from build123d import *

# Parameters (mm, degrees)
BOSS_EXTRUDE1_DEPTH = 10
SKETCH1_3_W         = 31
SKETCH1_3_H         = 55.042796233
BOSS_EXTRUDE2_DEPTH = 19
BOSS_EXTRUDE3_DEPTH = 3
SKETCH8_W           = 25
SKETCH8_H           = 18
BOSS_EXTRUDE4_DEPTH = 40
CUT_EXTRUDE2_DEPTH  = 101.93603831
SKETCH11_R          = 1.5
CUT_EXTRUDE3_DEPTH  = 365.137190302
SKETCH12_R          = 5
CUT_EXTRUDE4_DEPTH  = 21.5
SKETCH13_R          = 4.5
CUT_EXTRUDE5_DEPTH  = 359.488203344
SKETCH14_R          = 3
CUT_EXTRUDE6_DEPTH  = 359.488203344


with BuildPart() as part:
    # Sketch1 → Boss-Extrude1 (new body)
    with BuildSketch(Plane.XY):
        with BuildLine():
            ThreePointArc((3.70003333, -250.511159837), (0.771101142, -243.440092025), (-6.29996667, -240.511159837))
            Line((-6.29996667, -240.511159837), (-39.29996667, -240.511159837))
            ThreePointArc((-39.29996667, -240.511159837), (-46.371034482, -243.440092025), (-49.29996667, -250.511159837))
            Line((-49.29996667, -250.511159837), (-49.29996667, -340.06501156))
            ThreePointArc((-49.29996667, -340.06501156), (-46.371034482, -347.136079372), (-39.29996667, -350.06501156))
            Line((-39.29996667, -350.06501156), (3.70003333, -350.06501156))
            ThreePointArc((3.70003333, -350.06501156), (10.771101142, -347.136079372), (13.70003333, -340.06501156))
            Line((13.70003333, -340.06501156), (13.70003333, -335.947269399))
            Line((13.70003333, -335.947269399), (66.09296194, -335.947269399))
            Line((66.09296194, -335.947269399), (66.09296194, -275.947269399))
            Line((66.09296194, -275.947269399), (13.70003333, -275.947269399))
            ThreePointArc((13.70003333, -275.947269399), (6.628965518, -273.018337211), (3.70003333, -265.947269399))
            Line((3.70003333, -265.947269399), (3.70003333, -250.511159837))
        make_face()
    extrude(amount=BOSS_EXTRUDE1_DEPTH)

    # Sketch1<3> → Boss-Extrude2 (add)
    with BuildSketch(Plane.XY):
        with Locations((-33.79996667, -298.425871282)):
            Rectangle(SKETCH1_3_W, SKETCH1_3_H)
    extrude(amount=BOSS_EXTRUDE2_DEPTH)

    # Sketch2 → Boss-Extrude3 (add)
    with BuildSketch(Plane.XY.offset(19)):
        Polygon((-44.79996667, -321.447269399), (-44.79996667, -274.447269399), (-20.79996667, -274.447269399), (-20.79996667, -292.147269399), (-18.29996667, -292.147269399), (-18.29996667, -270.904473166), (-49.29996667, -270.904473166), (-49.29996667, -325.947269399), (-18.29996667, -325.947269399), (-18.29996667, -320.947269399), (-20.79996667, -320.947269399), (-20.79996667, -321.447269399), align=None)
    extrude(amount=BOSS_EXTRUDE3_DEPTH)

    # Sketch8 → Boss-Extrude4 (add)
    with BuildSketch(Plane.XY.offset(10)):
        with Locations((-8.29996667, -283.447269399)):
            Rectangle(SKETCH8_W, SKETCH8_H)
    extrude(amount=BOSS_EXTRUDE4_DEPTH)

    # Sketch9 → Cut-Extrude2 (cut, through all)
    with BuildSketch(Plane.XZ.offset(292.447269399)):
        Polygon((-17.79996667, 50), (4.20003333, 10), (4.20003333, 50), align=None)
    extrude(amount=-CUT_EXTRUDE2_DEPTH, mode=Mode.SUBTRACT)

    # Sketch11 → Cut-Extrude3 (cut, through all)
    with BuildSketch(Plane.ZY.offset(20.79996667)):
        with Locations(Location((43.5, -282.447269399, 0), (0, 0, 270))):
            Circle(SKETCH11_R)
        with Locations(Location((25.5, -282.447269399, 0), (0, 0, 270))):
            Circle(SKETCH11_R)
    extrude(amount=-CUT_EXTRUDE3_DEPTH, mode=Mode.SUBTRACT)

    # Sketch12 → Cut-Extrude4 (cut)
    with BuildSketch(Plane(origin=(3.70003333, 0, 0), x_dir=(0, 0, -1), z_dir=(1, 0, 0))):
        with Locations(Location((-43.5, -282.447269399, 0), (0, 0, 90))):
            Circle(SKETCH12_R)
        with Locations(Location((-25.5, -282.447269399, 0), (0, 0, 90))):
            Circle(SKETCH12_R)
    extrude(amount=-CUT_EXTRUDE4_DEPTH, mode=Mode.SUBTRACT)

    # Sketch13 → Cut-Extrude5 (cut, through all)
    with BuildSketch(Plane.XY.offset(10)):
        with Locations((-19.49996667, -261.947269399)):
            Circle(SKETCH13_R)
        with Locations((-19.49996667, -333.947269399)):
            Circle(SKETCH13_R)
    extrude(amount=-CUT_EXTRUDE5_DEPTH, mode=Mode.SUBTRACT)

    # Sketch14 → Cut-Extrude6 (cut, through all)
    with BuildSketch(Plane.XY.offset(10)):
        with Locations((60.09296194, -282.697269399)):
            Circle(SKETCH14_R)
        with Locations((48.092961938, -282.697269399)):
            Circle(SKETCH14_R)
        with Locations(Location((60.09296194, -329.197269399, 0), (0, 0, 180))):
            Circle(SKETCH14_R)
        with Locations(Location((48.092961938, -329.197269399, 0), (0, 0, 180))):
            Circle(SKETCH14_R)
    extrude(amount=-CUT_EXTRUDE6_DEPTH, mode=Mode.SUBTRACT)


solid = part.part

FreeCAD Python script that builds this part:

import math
import FreeCAD as App
import Part
import Sketcher
Q = App.Units.Quantity

doc = App.newDocument("Part")
body = doc.addObject("PartDesign::Body", "Body")

# Sketch on XY plane
sketch1 = doc.addObject("Sketcher::SketchObject", "Sketch")
body.addObject(sketch1)
sketch1.AttachmentSupport = (doc.XY_Plane, [""])
sketch1.MapMode = "FlatFace"
sketch1.addGeometry(Part.ArcOfCircle(Part.Circle(App.Vector(-6.299967, -250.51116, 0), App.Vector(0, 0, 1), 10), math.radians(0), math.radians(90)), False)
sketch1.addGeometry(Part.LineSegment(App.Vector(-6.299967, -240.51116, 0), App.Vector(-39.299967, -240.51116, 0)), False)
sketch1.addGeometry(Part.ArcOfCircle(Part.Circle(App.Vector(-39.299967, -250.51116, 0), App.Vector(0, 0, 1), 10), math.radians(90), math.radians(180)), False)
sketch1.addGeometry(Part.LineSegment(App.Vector(-49.299967, -250.51116, 0), App.Vector(-49.299967, -340.065012, 0)), False)
sketch1.addGeometry(Part.ArcOfCircle(Part.Circle(App.Vector(-39.299967, -340.065012, 0), App.Vector(0, 0, 1), 10), math.radians(180), math.radians(270)), False)
sketch1.addGeometry(Part.LineSegment(App.Vector(-39.299967, -350.065012, 0), App.Vector(3.700033, -350.065012, 0)), False)
sketch1.addGeometry(Part.ArcOfCircle(Part.Circle(App.Vector(3.700033, -340.065012, 0), App.Vector(0, 0, 1), 10), math.radians(-90), math.radians(0)), False)
sketch1.addGeometry(Part.LineSegment(App.Vector(13.700033, -340.065012, 0), App.Vector(13.700033, -335.947269, 0)), False)
sketch1.addGeometry(Part.LineSegment(App.Vector(13.700033, -335.947269, 0), App.Vector(66.092962, -335.947269, 0)), False)
sketch1.addGeometry(Part.LineSegment(App.Vector(66.092962, -335.947269, 0), App.Vector(66.092962, -275.947269, 0)), False)
sketch1.addGeometry(Part.LineSegment(App.Vector(66.092962, -275.947269, 0), App.Vector(13.700033, -275.947269, 0)), False)
sketch1.addGeometry(Part.ArcOfCircle(Part.Circle(App.Vector(13.700033, -265.947269, 0), App.Vector(0, 0, 1), 10), math.radians(180), math.radians(270)), False)
sketch1.addGeometry(Part.LineSegment(App.Vector(3.700033, -265.947269, 0), App.Vector(3.700033, -250.51116, 0)), False)
sketch1.addConstraint(Sketcher.Constraint("Tangent", 0, 2, 1, 1))
sketch1.addConstraint(Sketcher.Constraint("Tangent", 1, 2, 2, 1))
sketch1.addConstraint(Sketcher.Constraint("Tangent", 2, 2, 3, 1))
sketch1.addConstraint(Sketcher.Constraint("Tangent", 3, 2, 4, 1))
sketch1.addConstraint(Sketcher.Constraint("Tangent", 4, 2, 5, 1))
sketch1.addConstraint(Sketcher.Constraint("Tangent", 5, 2, 6, 1))
sketch1.addConstraint(Sketcher.Constraint("Tangent", 6, 2, 7, 1))
sketch1.addConstraint(Sketcher.Constraint("Coincident", 7, 2, 8, 1))
sketch1.addConstraint(Sketcher.Constraint("Coincident", 8, 2, 9, 1))
sketch1.addConstraint(Sketcher.Constraint("Coincident", 9, 2, 10, 1))
sketch1.addConstraint(Sketcher.Constraint("Tangent", 10, 2, 11, 2))
sketch1.addConstraint(Sketcher.Constraint("Tangent", 11, 1, 12, 1))
sketch1.addConstraint(Sketcher.Constraint("Tangent", 12, 2, 0, 1))
sketch1.addConstraint(Sketcher.Constraint("Horizontal", 1))
sketch1.addConstraint(Sketcher.Constraint("Vertical", 3))
sketch1.addConstraint(Sketcher.Constraint("Horizontal", 5))
sketch1.addConstraint(Sketcher.Constraint("Vertical", 7))
sketch1.addConstraint(Sketcher.Constraint("Horizontal", 8))
sketch1.addConstraint(Sketcher.Constraint("Vertical", 9))
sketch1.addConstraint(Sketcher.Constraint("Horizontal", 10))
sketch1.addConstraint(Sketcher.Constraint("Vertical", 12))
sketch1.addConstraint(Sketcher.Constraint("Equal", 0, 2))
sketch1.addConstraint(Sketcher.Constraint("Equal", 2, 4))
sketch1.addConstraint(Sketcher.Constraint("Equal", 4, 6))
sketch1.addConstraint(Sketcher.Constraint("Equal", 6, 11))
sketch1.addConstraint(Sketcher.Constraint("Vertical", 11, 3, 6, 2))
sketch1.addConstraint(Sketcher.Constraint("Radius", 0, Q("10 mm")))
sketch1.addConstraint(Sketcher.Constraint("DistanceX", 1, 2, 1, 1, Q("33 mm")))
sketch1.addConstraint(Sketcher.Constraint("DistanceY", 9, 1, 9, 2, Q("60 mm")))
sketch1.addConstraint(Sketcher.Constraint("DistanceX", 8, 1, 8, 2, Q("52.392929 mm")))
sketch1.addConstraint(Sketcher.Constraint("DistanceY", 3, 2, 3, 1, Q("89.553852 mm")))
sketch1.addConstraint(Sketcher.Constraint("DistanceY", 12, 1, 12, 2, Q("15.43611 mm")))
sketch1.addConstraint(Sketcher.Constraint("DistanceY", 0, 3, -1, 1, Q("250.51116 mm")))
sketch1.addConstraint(Sketcher.Constraint("DistanceX", -1, 1, 8, 2, Q("66.092962 mm")))
pad1 = doc.addObject("PartDesign::Pad", "Pad")
body.addObject(pad1)
pad1.Profile = sketch1
pad1.Length = 10

# Sketch on XY plane
sketch2 = doc.addObject("Sketcher::SketchObject", "Sketch001")
body.addObject(sketch2)
sketch2.AttachmentSupport = (doc.XY_Plane, [""])
sketch2.MapMode = "FlatFace"
sketch2.addGeometry(Part.LineSegment(App.Vector(-49.299967, -270.904473, 0), App.Vector(-49.299967, -325.947269, 0)), False)
sketch2.addGeometry(Part.LineSegment(App.Vector(-49.299967, -325.947269, 0), App.Vector(-18.299967, -325.947269, 0)), False)
sketch2.addGeometry(Part.LineSegment(App.Vector(-18.299967, -325.947269, 0), App.Vector(-18.299967, -270.904473, 0)), False)
sketch2.addGeometry(Part.LineSegment(App.Vector(-18.299967, -270.904473, 0), App.Vector(-49.299967, -270.904473, 0)), False)
sketch2.addConstraint(Sketcher.Constraint("Coincident", 0, 2, 1, 1))
sketch2.addConstraint(Sketcher.Constraint("Coincident", 1, 2, 2, 1))
sketch2.addConstraint(Sketcher.Constraint("Coincident", 2, 2, 3, 1))
sketch2.addConstraint(Sketcher.Constraint("Coincident", 3, 2, 0, 1))
sketch2.addConstraint(Sketcher.Constraint("Vertical", 0))
sketch2.addConstraint(Sketcher.Constraint("Horizontal", 1))
sketch2.addConstraint(Sketcher.Constraint("Vertical", 2))
sketch2.addConstraint(Sketcher.Constraint("Horizontal", 3))
sketch2.addConstraint(Sketcher.Constraint("DistanceX", 1, 1, 1, 2, Q("31 mm")))
sketch2.addConstraint(Sketcher.Constraint("DistanceY", 0, 2, 0, 1, Q("55.042796 mm")))
sketch2.addConstraint(Sketcher.Constraint("DistanceY", 0, 2, -1, 1, Q("325.947269 mm")))
sketch2.addConstraint(Sketcher.Constraint("DistanceX", 0, 2, -1, 1, Q("49.299967 mm")))
pad2 = doc.addObject("PartDesign::Pad", "Pad001")
body.addObject(pad2)
pad2.Profile = sketch2
pad2.Length = 19

# Sketch on XY plane
sketch3 = doc.addObject("Sketcher::SketchObject", "Sketch002")
body.addObject(sketch3)
sketch3.AttachmentSupport = (doc.XY_Plane, [""])
sketch3.MapMode = "FlatFace"
sketch3.AttachmentOffset = App.Placement(App.Vector(0, 0, 19), App.Rotation())
sketch3.addGeometry(Part.LineSegment(App.Vector(-44.799967, -321.447269, 0), App.Vector(-44.799967, -274.447269, 0)), False)
sketch3.addGeometry(Part.LineSegment(App.Vector(-44.799967, -274.447269, 0), App.Vector(-20.799967, -274.447269, 0)), False)
sketch3.addGeometry(Part.LineSegment(App.Vector(-20.799967, -274.447269, 0), App.Vector(-20.799967, -292.147269, 0)), False)
sketch3.addGeometry(Part.LineSegment(App.Vector(-20.799967, -292.147269, 0), App.Vector(-18.299967, -292.147269, 0)), False)
sketch3.addGeometry(Part.LineSegment(App.Vector(-18.299967, -292.147269, 0), App.Vector(-18.299967, -270.904473, 0)), False)
sketch3.addGeometry(Part.LineSegment(App.Vector(-18.299967, -270.904473, 0), App.Vector(-49.299967, -270.904473, 0)), False)
sketch3.addGeometry(Part.LineSegment(App.Vector(-49.299967, -270.904473, 0), App.Vector(-49.299967, -325.947269, 0)), False)
sketch3.addGeometry(Part.LineSegment(App.Vector(-49.299967, -325.947269, 0), App.Vector(-18.299967, -325.947269, 0)), False)
sketch3.addGeometry(Part.LineSegment(App.Vector(-18.299967, -325.947269, 0), App.Vector(-18.299967, -320.947269, 0)), False)
sketch3.addGeometry(Part.LineSegment(App.Vector(-18.299967, -320.947269, 0), App.Vector(-20.799967, -320.947269, 0)), False)
sketch3.addGeometry(Part.LineSegment(App.Vector(-20.799967, -320.947269, 0), App.Vector(-20.799967, -321.447269, 0)), False)
sketch3.addGeometry(Part.LineSegment(App.Vector(-20.799967, -321.447269, 0), App.Vector(-44.799967, -321.447269, 0)), False)
sketch3.addConstraint(Sketcher.Constraint("Coincident", 0, 2, 1, 1))
sketch3.addConstraint(Sketcher.Constraint("Coincident", 1, 2, 2, 1))
sketch3.addConstraint(Sketcher.Constraint("Coincident", 2, 2, 3, 1))
sketch3.addConstraint(Sketcher.Constraint("Coincident", 3, 2, 4, 1))
sketch3.addConstraint(Sketcher.Constraint("Coincident", 4, 2, 5, 1))
sketch3.addConstraint(Sketcher.Constraint("Coincident", 5, 2, 6, 1))
sketch3.addConstraint(Sketcher.Constraint("Coincident", 6, 2, 7, 1))
sketch3.addConstraint(Sketcher.Constraint("Coincident", 7, 2, 8, 1))
sketch3.addConstraint(Sketcher.Constraint("Coincident", 8, 2, 9, 1))
sketch3.addConstraint(Sketcher.Constraint("Coincident", 9, 2, 10, 1))
sketch3.addConstraint(Sketcher.Constraint("Coincident", 10, 2, 11, 1))
sketch3.addConstraint(Sketcher.Constraint("Coincident", 11, 2, 0, 1))
sketch3.addConstraint(Sketcher.Constraint("Vertical", 0))
sketch3.addConstraint(Sketcher.Constraint("Horizontal", 1))
sketch3.addConstraint(Sketcher.Constraint("Vertical", 2))
sketch3.addConstraint(Sketcher.Constraint("Horizontal", 3))
sketch3.addConstraint(Sketcher.Constraint("Vertical", 4))
sketch3.addConstraint(Sketcher.Constraint("Horizontal", 5))
sketch3.addConstraint(Sketcher.Constraint("Vertical", 6))
sketch3.addConstraint(Sketcher.Constraint("Horizontal", 7))
sketch3.addConstraint(Sketcher.Constraint("Vertical", 8))
sketch3.addConstraint(Sketcher.Constraint("Horizontal", 9))
sketch3.addConstraint(Sketcher.Constraint("Vertical", 10))
sketch3.addConstraint(Sketcher.Constraint("Horizontal", 11))
sketch3.addConstraint(Sketcher.Constraint("Vertical", 4, 2, 7, 2))
sketch3.addConstraint(Sketcher.Constraint("Vertical", 2, 2, 9, 2))
sketch3.addConstraint(Sketcher.Constraint("DistanceX", 1, 1, 1, 2, Q("24 mm")))
sketch3.addConstraint(Sketcher.Constraint("DistanceX", 5, 2, 5, 1, Q("31 mm")))
sketch3.addConstraint(Sketcher.Constraint("DistanceY", 0, 1, 0, 2, Q("47 mm")))
sketch3.addConstraint(Sketcher.Constraint("DistanceY", 8, 1, 8, 2, Q("5 mm")))
sketch3.addConstraint(Sketcher.Constraint("DistanceX", 3, 1, 3, 2, Q("2.5 mm")))
sketch3.addConstraint(Sketcher.Constraint("DistanceY", 2, 2, 2, 1, Q("17.7 mm")))
sketch3.addConstraint(Sketcher.Constraint("DistanceY", 10, 2, 10, 1, Q("0.5 mm")))
sketch3.addConstraint(Sketcher.Constraint("DistanceY", 4, 1, 4, 2, Q("21.242796 mm")))
sketch3.addConstraint(Sketcher.Constraint("DistanceY", 0, 2, -1, 1, Q("274.447269 mm")))
sketch3.addConstraint(Sketcher.Constraint("DistanceX", 0, 2, -1, 1, Q("44.799967 mm")))
pad3 = doc.addObject("PartDesign::Pad", "Pad002")
body.addObject(pad3)
pad3.Profile = sketch3
pad3.Length = 3

# Sketch on XY plane
sketch4 = doc.addObject("Sketcher::SketchObject", "Sketch003")
body.addObject(sketch4)
sketch4.AttachmentSupport = (doc.XY_Plane, [""])
sketch4.MapMode = "FlatFace"
sketch4.AttachmentOffset = App.Placement(App.Vector(0, 0, 10), App.Rotation())
sketch4.addGeometry(Part.LineSegment(App.Vector(-20.799967, -274.447269, 0), App.Vector(-20.799967, -292.447269, 0)), False)
sketch4.addGeometry(Part.LineSegment(App.Vector(-20.799967, -292.447269, 0), App.Vector(4.200033, -292.447269, 0)), False)
sketch4.addGeometry(Part.LineSegment(App.Vector(4.200033, -292.447269, 0), App.Vector(4.200033, -274.447269, 0)), False)
sketch4.addGeometry(Part.LineSegment(App.Vector(4.200033, -274.447269, 0), App.Vector(-20.799967, -274.447269, 0)), False)
sketch4.addConstraint(Sketcher.Constraint("Coincident", 0, 2, 1, 1))
sketch4.addConstraint(Sketcher.Constraint("Coincident", 1, 2, 2, 1))
sketch4.addConstraint(Sketcher.Constraint("Coincident", 2, 2, 3, 1))
sketch4.addConstraint(Sketcher.Constraint("Coincident", 3, 2, 0, 1))
sketch4.addConstraint(Sketcher.Constraint("Vertical", 0))
sketch4.addConstraint(Sketcher.Constraint("Horizontal", 1))
sketch4.addConstraint(Sketcher.Constraint("Vertical", 2))
sketch4.addConstraint(Sketcher.Constraint("Horizontal", 3))
sketch4.addConstraint(Sketcher.Constraint("DistanceX", 1, 1, 1, 2, Q("25 mm")))
sketch4.addConstraint(Sketcher.Constraint("DistanceY", 0, 2, 0, 1, Q("18 mm")))
sketch4.addConstraint(Sketcher.Constraint("DistanceY", 0, 2, -1, 1, Q("292.447269 mm")))
sketch4.addConstraint(Sketcher.Constraint("DistanceX", 0, 2, -1, 1, Q("20.799967 mm")))
pad4 = doc.addObject("PartDesign::Pad", "Pad003")
body.addObject(pad4)
pad4.Profile = sketch4
pad4.Length = 40

# Sketch on XZ plane
sketch5 = doc.addObject("Sketcher::SketchObject", "Sketch004")
body.addObject(sketch5)
sketch5.AttachmentSupport = (doc.XZ_Plane, [""])
sketch5.MapMode = "FlatFace"
sketch5.AttachmentOffset = App.Placement(App.Vector(0, 0, 292.447269), App.Rotation())
sketch5.addGeometry(Part.LineSegment(App.Vector(-17.799967, 50, 0), App.Vector(4.200033, 10, 0)), False)
sketch5.addGeometry(Part.LineSegment(App.Vector(4.200033, 10, 0), App.Vector(4.200033, 50, 0)), False)
sketch5.addGeometry(Part.LineSegment(App.Vector(4.200033, 50, 0), App.Vector(-17.799967, 50, 0)), False)
sketch5.addConstraint(Sketcher.Constraint("Coincident", 0, 2, 1, 1))
sketch5.addConstraint(Sketcher.Constraint("Coincident", 1, 2, 2, 1))
sketch5.addConstraint(Sketcher.Constraint("Coincident", 2, 2, 0, 1))
sketch5.addConstraint(Sketcher.Constraint("Vertical", 1))
sketch5.addConstraint(Sketcher.Constraint("Horizontal", 2))
sketch5.addConstraint(Sketcher.Constraint("DistanceX", 2, 2, 2, 1, Q("22 mm")))
sketch5.addConstraint(Sketcher.Constraint("DistanceY", 1, 1, 1, 2, Q("40 mm")))
sketch5.addConstraint(Sketcher.Constraint("DistanceY", -1, 1, 0, 2, Q("10 mm")))
sketch5.addConstraint(Sketcher.Constraint("DistanceX", -1, 1, 0, 2, Q("4.200033 mm")))
pocket1 = doc.addObject("PartDesign::Pocket", "Pocket")
body.addObject(pocket1)
pocket1.Profile = sketch5
pocket1.Type = "ThroughAll"

# Sketch on YZ plane
sketch6 = doc.addObject("Sketcher::SketchObject", "Sketch005")
body.addObject(sketch6)
sketch6.AttachmentSupport = (doc.YZ_Plane, [""])
sketch6.MapMode = "FlatFace"
sketch6.AttachmentOffset = App.Placement(App.Vector(0, 0, -20.799967), App.Rotation())
sketch6.addGeometry(Part.Circle(App.Vector(-282.447269, 43.5, 0), App.Vector(0, 0, 1), 1.5), False)
sketch6.addGeometry(Part.Circle(App.Vector(-282.447269, 25.5, 0), App.Vector(0, 0, 1), 1.5), False)
sketch6.addConstraint(Sketcher.Constraint("Equal", 0, 1))
sketch6.addConstraint(Sketcher.Constraint("Vertical", 0, 3, 1, 3))
sketch6.addConstraint(Sketcher.Constraint("Diameter", 0, Q("3 mm")))
sketch6.addConstraint(Sketcher.Constraint("DistanceY", 1, 3, 0, 3, Q("18 mm")))
sketch6.addConstraint(Sketcher.Constraint("DistanceY", -1, 1, 0, 3, Q("43.5 mm")))
sketch6.addConstraint(Sketcher.Constraint("DistanceX", 0, 3, -1, 1, Q("282.447269 mm")))
pocket2 = doc.addObject("PartDesign::Pocket", "Pocket001")
body.addObject(pocket2)
pocket2.Profile = sketch6
pocket2.Type = "ThroughAll"
pocket2.Reversed = True

# Sketch on YZ plane
sketch7 = doc.addObject("Sketcher::SketchObject", "Sketch006")
body.addObject(sketch7)
sketch7.AttachmentSupport = (doc.YZ_Plane, [""])
sketch7.MapMode = "FlatFace"
sketch7.AttachmentOffset = App.Placement(App.Vector(0, 0, 3.700033), App.Rotation())
sketch7.addGeometry(Part.Circle(App.Vector(-282.447269, 43.5, 0), App.Vector(0, 0, 1), 5), False)
sketch7.addGeometry(Part.Circle(App.Vector(-282.447269, 25.5, 0), App.Vector(0, 0, 1), 5), False)
sketch7.addConstraint(Sketcher.Constraint("Equal", 0, 1))
sketch7.addConstraint(Sketcher.Constraint("Vertical", 0, 3, 1, 3))
sketch7.addConstraint(Sketcher.Constraint("Diameter", 0, Q("10 mm")))
sketch7.addConstraint(Sketcher.Constraint("DistanceY", 1, 3, 0, 3, Q("18 mm")))
sketch7.addConstraint(Sketcher.Constraint("DistanceY", -1, 1, 0, 3, Q("43.5 mm")))
sketch7.addConstraint(Sketcher.Constraint("DistanceX", 0, 3, -1, 1, Q("282.447269 mm")))
pocket3 = doc.addObject("PartDesign::Pocket", "Pocket002")
body.addObject(pocket3)
pocket3.Profile = sketch7
pocket3.Length = 21.5

# Sketch on XY plane
sketch8 = doc.addObject("Sketcher::SketchObject", "Sketch007")
body.addObject(sketch8)
sketch8.AttachmentSupport = (doc.XY_Plane, [""])
sketch8.MapMode = "FlatFace"
sketch8.AttachmentOffset = App.Placement(App.Vector(0, 0, 10), App.Rotation())
sketch8.addGeometry(Part.Circle(App.Vector(-19.499967, -261.947269, 0), App.Vector(0, 0, 1), 4.5), False)
sketch8.addGeometry(Part.Circle(App.Vector(-19.499967, -333.947269, 0), App.Vector(0, 0, 1), 4.5), False)
sketch8.addConstraint(Sketcher.Constraint("Equal", 0, 1))
sketch8.addConstraint(Sketcher.Constraint("Vertical", 0, 3, 1, 3))
sketch8.addConstraint(Sketcher.Constraint("Diameter", 0, Q("9 mm")))
sketch8.addConstraint(Sketcher.Constraint("DistanceY", 1, 3, 0, 3, Q("72 mm")))
sketch8.addConstraint(Sketcher.Constraint("DistanceY", 0, 3, -1, 1, Q("261.947269 mm")))
sketch8.addConstraint(Sketcher.Constraint("DistanceX", 0, 3, -1, 1, Q("19.499967 mm")))
pocket4 = doc.addObject("PartDesign::Pocket", "Pocket003")
body.addObject(pocket4)
pocket4.Profile = sketch8
pocket4.Type = "ThroughAll"

# Sketch on XY plane
sketch9 = doc.addObject("Sketcher::SketchObject", "Sketch008")
body.addObject(sketch9)
sketch9.AttachmentSupport = (doc.XY_Plane, [""])
sketch9.MapMode = "FlatFace"
sketch9.AttachmentOffset = App.Placement(App.Vector(0, 0, 10), App.Rotation())
sketch9.addGeometry(Part.Circle(App.Vector(60.092962, -282.697269, 0), App.Vector(0, 0, 1), 3), False)
sketch9.addGeometry(Part.Circle(App.Vector(48.092962, -282.697269, 0), App.Vector(0, 0, 1), 3), False)
sketch9.addGeometry(Part.Circle(App.Vector(60.092962, -329.197269, 0), App.Vector(0, 0, 1), 3), False)
sketch9.addGeometry(Part.Circle(App.Vector(48.092962, -329.197269, 0), App.Vector(0, 0, 1), 3), False)
sketch9.addConstraint(Sketcher.Constraint("Equal", 0, 1))
sketch9.addConstraint(Sketcher.Constraint("Equal", 1, 2))
sketch9.addConstraint(Sketcher.Constraint("Equal", 2, 3))
sketch9.addConstraint(Sketcher.Constraint("Horizontal", 0, 3, 1, 3))
sketch9.addConstraint(Sketcher.Constraint("Horizontal", 2, 3, 3, 3))
sketch9.addConstraint(Sketcher.Constraint("Vertical", 0, 3, 2, 3))
sketch9.addConstraint(Sketcher.Constraint("Vertical", 1, 3, 3, 3))
sketch9.addConstraint(Sketcher.Constraint("Diameter", 0, Q("6 mm")))
sketch9.addConstraint(Sketcher.Constraint("DistanceX", 1, 3, 0, 3, Q("12 mm")))
sketch9.addConstraint(Sketcher.Constraint("DistanceY", 2, 3, 0, 3, Q("46.5 mm")))
sketch9.addConstraint(Sketcher.Constraint("DistanceX", -1, 1, 0, 3, Q("60.092962 mm")))
sketch9.addConstraint(Sketcher.Constraint("DistanceY", 0, 3, -1, 1, Q("282.697269 mm")))
pocket5 = doc.addObject("PartDesign::Pocket", "Pocket004")
body.addObject(pocket5)
pocket5.Profile = sketch9
pocket5.Type = "ThroughAll"

doc.recompute()
